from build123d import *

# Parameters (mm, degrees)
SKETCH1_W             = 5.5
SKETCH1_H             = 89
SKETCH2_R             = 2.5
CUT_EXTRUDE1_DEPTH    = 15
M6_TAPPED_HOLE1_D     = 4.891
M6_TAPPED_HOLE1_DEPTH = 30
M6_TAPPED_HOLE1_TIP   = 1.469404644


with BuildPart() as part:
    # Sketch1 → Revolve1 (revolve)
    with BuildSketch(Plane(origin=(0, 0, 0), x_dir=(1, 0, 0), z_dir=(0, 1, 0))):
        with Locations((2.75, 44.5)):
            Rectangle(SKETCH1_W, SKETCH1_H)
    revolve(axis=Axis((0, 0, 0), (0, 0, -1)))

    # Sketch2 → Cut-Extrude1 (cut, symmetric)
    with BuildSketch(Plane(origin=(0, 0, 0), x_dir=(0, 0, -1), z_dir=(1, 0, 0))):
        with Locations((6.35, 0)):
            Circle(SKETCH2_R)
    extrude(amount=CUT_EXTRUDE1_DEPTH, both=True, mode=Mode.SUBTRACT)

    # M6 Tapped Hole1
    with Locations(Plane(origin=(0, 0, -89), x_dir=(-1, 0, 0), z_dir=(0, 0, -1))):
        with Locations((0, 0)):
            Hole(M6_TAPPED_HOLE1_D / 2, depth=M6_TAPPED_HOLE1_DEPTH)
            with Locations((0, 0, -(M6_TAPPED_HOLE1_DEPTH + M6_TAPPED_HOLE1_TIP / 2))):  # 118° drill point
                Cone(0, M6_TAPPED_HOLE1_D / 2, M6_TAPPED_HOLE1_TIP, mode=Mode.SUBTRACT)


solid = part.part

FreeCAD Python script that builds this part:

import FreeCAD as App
import Part
import Sketcher

V = App.Vector


def add_polygon(sketch, points):
    """Adds a closed chain of lines whose ends are joined by coincident constraints."""
    first, n = sketch.GeometryCount, len(points)
    for a, b in zip(points, points[1:] + points[:1]):
        sketch.addGeometry(Part.LineSegment(App.Vector(*a, 0), App.Vector(*b, 0)), False)
    for i in range(n):
        sketch.addConstraint(Sketcher.Constraint("Coincident", first + i, 2, first + (i + 1) % n, 1))

doc = App.newDocument("Part")
body = doc.addObject("PartDesign::Body", "Body")

# Sketch on XZ plane
sketch1 = body.newObject("Sketcher::SketchObject", "Sketch")
sketch1.AttachmentSupport = (doc.getObject("XZ_Plane"), [""])
sketch1.MapMode = "FlatFace"
add_polygon(sketch1, [(0, -89), (0, 0), (6, 0), (6, -89)])  # lines 0-3
sketch1.addConstraint(Sketcher.Constraint("Vertical", 0))
sketch1.addConstraint(Sketcher.Constraint("Horizontal", 1))
sketch1.addConstraint(Sketcher.Constraint("Vertical", 2))
sketch1.addConstraint(Sketcher.Constraint("Horizontal", 3))
sketch1.addConstraint(Sketcher.Constraint("Coincident", 0, 2, -1, 1))
sketch1.addConstraint(Sketcher.Constraint("DistanceY", 0, 1, 0, 2, 89.0))
sketch1.addConstraint(Sketcher.Constraint("DistanceX", 1, 1, 1, 2, 5.5))
revolution = body.newObject("PartDesign::Revolution", "Revolution")
revolution.Profile = sketch1
revolution.ReferenceAxis = (sketch1, ["V_Axis"])
revolution.Angle = 360

# Sketch on YZ plane
sketch2 = body.newObject("Sketcher::SketchObject", "Sketch001")
sketch2.AttachmentSupport = (doc.getObject("YZ_Plane"), [""])
sketch2.MapMode = "FlatFace"
sketch2.addGeometry(Part.Circle(V(0, -6.3, 0), V(0, 0, 1), 2.5), False)
sketch2.addConstraint(Sketcher.Constraint("PointOnObject", 0, 3, -2))
sketch2.addConstraint(Sketcher.Constraint("Diameter", 0, 5.0))
sketch2.addConstraint(Sketcher.Constraint("DistanceY", 0, 3, -1, 1, 6.35))
pocket1 = body.newObject("PartDesign::Pocket", "Pocket")
pocket1.Profile = sketch2
pocket1.Length = 30
pocket1.Midplane = True

# Sketch on XY plane
sketch3 = body.newObject("Sketcher::SketchObject", "Sketch002")
sketch3.AttachmentSupport = (doc.getObject("XY_Plane"), [""])
sketch3.MapMode = "FlatFace"
sketch3.AttachmentOffset = App.Placement(V(0, 0, -89), App.Rotation())
sketch3.addGeometry(Part.Circle(V(0, 0, 0), V(0, 0, 1), 2.4), False)
sketch3.addConstraint(Sketcher.Constraint("Coincident", 0, 3, -1, 1))
sketch3.addConstraint(Sketcher.Constraint("Diameter", 0, 4.891))
doc.recompute()
hole = body.newObject("PartDesign::Hole", "Hole")
hole.Profile = sketch3
hole.ThreadType = "None"
hole.Diameter = 4.891
hole.DepthType = "Dimension"
hole.Depth = 30
hole.DrillPoint = "Angled"
hole.DrillPointAngle = 118
hole.Reversed = True

doc.recompute()
